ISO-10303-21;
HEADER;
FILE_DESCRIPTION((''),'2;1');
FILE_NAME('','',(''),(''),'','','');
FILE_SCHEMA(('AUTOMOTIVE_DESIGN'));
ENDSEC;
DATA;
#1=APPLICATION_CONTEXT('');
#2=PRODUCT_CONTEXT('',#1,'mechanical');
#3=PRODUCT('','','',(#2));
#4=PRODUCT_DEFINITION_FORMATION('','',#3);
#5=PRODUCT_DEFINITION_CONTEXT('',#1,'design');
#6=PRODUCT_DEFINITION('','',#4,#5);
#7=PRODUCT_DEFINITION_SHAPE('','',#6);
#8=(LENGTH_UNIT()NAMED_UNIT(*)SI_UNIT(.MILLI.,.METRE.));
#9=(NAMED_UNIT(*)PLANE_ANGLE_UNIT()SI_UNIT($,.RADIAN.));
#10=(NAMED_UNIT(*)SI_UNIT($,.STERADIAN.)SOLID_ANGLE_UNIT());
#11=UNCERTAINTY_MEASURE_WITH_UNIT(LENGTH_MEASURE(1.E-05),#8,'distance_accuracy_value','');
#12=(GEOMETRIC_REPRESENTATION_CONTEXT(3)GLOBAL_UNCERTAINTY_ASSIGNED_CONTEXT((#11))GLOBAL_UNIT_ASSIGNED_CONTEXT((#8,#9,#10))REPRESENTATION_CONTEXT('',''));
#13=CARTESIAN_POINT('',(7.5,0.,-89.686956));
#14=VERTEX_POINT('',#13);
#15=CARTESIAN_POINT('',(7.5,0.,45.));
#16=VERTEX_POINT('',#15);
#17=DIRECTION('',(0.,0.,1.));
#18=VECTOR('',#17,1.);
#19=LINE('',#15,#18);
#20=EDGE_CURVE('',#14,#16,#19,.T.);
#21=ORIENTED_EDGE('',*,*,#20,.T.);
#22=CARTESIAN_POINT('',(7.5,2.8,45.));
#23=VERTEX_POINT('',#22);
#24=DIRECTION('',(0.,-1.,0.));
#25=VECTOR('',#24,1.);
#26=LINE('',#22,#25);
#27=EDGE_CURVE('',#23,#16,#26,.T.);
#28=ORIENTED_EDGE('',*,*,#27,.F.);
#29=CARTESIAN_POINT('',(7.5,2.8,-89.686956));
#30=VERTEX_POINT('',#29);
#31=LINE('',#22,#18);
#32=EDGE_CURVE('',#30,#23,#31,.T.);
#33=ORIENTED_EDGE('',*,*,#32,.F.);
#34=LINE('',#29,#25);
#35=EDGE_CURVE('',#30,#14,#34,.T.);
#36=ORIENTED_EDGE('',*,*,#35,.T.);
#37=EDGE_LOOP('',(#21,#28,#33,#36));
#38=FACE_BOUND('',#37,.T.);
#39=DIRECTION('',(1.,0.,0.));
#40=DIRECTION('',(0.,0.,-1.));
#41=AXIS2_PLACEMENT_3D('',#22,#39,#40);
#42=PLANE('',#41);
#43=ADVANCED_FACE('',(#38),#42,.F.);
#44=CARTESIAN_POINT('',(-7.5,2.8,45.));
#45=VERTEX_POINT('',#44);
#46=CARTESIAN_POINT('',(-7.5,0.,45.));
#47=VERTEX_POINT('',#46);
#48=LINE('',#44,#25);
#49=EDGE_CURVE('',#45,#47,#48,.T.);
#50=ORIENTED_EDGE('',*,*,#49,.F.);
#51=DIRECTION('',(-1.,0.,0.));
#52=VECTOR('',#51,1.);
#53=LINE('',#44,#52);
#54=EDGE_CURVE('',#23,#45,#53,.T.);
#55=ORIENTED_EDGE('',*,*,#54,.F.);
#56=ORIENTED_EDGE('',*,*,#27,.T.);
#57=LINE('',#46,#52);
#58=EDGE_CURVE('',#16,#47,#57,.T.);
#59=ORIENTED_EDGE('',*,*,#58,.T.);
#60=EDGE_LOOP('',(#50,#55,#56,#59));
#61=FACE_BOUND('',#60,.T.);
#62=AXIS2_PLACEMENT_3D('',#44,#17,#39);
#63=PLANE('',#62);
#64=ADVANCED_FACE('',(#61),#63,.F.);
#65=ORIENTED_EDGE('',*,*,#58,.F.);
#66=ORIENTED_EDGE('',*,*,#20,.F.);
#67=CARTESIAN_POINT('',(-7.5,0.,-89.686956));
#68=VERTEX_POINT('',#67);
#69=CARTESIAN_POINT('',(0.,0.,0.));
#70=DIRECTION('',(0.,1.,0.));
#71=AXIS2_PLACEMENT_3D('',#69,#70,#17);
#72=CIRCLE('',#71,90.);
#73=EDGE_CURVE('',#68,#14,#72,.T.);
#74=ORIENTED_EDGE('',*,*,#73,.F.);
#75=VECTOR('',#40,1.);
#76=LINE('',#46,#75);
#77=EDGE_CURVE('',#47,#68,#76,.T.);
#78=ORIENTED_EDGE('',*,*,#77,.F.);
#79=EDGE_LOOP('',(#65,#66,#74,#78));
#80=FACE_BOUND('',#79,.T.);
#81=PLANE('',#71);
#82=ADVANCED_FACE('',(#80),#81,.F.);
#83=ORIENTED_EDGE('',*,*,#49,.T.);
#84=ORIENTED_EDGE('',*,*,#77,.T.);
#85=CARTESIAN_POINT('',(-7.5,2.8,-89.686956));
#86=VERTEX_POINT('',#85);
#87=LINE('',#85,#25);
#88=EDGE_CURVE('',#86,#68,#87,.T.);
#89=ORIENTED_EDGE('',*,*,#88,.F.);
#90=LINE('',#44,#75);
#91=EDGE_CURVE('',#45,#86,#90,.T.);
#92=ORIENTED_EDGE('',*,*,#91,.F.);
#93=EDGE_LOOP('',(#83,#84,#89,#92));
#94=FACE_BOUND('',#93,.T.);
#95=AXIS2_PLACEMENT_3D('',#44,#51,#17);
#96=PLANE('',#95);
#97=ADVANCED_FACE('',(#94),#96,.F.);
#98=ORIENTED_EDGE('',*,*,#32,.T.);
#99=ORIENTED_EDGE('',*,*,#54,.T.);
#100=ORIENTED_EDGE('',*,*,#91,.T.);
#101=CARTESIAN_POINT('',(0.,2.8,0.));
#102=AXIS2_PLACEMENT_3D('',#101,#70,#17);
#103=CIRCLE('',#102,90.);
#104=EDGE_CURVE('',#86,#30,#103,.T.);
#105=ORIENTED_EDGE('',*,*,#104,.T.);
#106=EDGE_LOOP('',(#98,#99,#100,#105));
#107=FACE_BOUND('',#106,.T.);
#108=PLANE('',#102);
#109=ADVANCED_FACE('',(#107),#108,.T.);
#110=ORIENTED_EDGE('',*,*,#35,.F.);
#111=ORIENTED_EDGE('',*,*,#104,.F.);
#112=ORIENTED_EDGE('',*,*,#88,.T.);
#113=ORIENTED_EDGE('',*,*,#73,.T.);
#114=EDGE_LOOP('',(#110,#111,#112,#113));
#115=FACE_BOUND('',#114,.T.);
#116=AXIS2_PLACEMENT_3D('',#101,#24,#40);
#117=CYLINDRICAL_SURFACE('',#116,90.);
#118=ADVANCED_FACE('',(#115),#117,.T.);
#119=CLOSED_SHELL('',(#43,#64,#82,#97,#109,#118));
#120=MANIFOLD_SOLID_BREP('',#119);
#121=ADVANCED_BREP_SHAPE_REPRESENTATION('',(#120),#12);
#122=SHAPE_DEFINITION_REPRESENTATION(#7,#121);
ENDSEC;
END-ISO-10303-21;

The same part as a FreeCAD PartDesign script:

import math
import FreeCAD as App
import Part
import Sketcher

V = App.Vector
Q = App.Units.Quantity

doc = App.newDocument("Part")
body = doc.addObject("PartDesign::Body", "Body")

sketch1 = body.newObject("Sketcher::SketchObject", "Sketch")
sketch1.AttachmentSupport = (doc.getObject("XZ_Plane"), [""])
sketch1.MapMode = "FlatFace"
sketch1.addGeometry([
    Part.LineSegment(V(8, 45, 0), V(-8, 45, 0)),
    Part.LineSegment(V(-8, 45, 0), V(-8, -90, 0)),
    Part.ArcOfCircle(Part.Circle(V(0, 0, 0), V(0, 0, 1), 90), math.radians(-85), math.radians(265)),
    Part.LineSegment(V(8, -90, 0), V(8, 45, 0)),
], False)
sketch1.addConstraint([
    Sketcher.Constraint("Coincident", 0, 2, 1, 1),
    Sketcher.Constraint("Coincident", 1, 2, 2, 2),
    Sketcher.Constraint("Coincident", 2, 1, 3, 1),
    Sketcher.Constraint("Coincident", 3, 2, 0, 1),
    Sketcher.Constraint("Horizontal", 0),
    Sketcher.Constraint("Vertical", 1),
    Sketcher.Constraint("Vertical", 3),
    Sketcher.Constraint("Coincident", 2, 3, -1, 1),
    Sketcher.Constraint("Horizontal", 1, 2, 2, 1),
    Sketcher.Constraint("Radius", 2, Q("90 mm")),
    Sketcher.Constraint("DistanceX", 0, 2, 0, 1, Q("15 mm")),
    Sketcher.Constraint("DistanceY", -1, 1, 0, 2, Q("45 mm")),
])
pad1 = body.newObject("PartDesign::Pad", "Pad")
pad1.Profile = sketch1
pad1.Length = 2.8
pad1.Reversed = True

doc.recompute()
